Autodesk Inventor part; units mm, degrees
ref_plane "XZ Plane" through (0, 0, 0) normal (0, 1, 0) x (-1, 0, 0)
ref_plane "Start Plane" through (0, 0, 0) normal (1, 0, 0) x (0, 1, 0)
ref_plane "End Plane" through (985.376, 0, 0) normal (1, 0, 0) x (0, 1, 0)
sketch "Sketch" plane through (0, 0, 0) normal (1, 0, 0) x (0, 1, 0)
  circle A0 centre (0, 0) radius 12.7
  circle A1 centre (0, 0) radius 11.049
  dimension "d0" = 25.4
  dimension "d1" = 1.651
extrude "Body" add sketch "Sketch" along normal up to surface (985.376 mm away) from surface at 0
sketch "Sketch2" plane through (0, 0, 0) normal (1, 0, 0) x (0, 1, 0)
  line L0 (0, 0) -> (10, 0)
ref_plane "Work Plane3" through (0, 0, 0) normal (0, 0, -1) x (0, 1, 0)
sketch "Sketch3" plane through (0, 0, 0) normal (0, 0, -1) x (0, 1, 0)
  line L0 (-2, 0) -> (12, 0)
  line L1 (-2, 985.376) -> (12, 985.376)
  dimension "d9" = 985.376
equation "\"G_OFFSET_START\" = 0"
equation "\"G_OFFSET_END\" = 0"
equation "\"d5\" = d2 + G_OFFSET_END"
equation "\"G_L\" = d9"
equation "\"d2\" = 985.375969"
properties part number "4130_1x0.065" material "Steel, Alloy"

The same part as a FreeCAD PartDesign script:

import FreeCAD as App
import Part
import Sketcher

V = App.Vector
Q = App.Units.Quantity

doc = App.newDocument("Part")
body = doc.addObject("PartDesign::Body", "Body")

sketch1 = body.newObject("Sketcher::SketchObject", "Sketch")
sketch1.AttachmentSupport = (doc.getObject("YZ_Plane"), [""])
sketch1.MapMode = "FlatFace"
sketch1.addGeometry(Part.Circle(V(0, 0, 0), V(0, 0, 1), 13), False)
sketch1.addGeometry(Part.Circle(V(0, 0, 0), V(0, 0, 1), 11), False)
sketch1.addConstraint(Sketcher.Constraint("Coincident", 0, 3, -1, 1))
sketch1.addConstraint(Sketcher.Constraint("Coincident", 1, 3, -1, 1))
sketch1.addConstraint(Sketcher.Constraint("Diameter", 0, Q("1 in")))
sketch1.addConstraint(Sketcher.Constraint("Diameter", 1, Q("0.87 in")))
pad1 = body.newObject("PartDesign::Pad", "Pad")
pad1.Profile = sketch1
pad1.Length = 985.376

doc.recompute()
